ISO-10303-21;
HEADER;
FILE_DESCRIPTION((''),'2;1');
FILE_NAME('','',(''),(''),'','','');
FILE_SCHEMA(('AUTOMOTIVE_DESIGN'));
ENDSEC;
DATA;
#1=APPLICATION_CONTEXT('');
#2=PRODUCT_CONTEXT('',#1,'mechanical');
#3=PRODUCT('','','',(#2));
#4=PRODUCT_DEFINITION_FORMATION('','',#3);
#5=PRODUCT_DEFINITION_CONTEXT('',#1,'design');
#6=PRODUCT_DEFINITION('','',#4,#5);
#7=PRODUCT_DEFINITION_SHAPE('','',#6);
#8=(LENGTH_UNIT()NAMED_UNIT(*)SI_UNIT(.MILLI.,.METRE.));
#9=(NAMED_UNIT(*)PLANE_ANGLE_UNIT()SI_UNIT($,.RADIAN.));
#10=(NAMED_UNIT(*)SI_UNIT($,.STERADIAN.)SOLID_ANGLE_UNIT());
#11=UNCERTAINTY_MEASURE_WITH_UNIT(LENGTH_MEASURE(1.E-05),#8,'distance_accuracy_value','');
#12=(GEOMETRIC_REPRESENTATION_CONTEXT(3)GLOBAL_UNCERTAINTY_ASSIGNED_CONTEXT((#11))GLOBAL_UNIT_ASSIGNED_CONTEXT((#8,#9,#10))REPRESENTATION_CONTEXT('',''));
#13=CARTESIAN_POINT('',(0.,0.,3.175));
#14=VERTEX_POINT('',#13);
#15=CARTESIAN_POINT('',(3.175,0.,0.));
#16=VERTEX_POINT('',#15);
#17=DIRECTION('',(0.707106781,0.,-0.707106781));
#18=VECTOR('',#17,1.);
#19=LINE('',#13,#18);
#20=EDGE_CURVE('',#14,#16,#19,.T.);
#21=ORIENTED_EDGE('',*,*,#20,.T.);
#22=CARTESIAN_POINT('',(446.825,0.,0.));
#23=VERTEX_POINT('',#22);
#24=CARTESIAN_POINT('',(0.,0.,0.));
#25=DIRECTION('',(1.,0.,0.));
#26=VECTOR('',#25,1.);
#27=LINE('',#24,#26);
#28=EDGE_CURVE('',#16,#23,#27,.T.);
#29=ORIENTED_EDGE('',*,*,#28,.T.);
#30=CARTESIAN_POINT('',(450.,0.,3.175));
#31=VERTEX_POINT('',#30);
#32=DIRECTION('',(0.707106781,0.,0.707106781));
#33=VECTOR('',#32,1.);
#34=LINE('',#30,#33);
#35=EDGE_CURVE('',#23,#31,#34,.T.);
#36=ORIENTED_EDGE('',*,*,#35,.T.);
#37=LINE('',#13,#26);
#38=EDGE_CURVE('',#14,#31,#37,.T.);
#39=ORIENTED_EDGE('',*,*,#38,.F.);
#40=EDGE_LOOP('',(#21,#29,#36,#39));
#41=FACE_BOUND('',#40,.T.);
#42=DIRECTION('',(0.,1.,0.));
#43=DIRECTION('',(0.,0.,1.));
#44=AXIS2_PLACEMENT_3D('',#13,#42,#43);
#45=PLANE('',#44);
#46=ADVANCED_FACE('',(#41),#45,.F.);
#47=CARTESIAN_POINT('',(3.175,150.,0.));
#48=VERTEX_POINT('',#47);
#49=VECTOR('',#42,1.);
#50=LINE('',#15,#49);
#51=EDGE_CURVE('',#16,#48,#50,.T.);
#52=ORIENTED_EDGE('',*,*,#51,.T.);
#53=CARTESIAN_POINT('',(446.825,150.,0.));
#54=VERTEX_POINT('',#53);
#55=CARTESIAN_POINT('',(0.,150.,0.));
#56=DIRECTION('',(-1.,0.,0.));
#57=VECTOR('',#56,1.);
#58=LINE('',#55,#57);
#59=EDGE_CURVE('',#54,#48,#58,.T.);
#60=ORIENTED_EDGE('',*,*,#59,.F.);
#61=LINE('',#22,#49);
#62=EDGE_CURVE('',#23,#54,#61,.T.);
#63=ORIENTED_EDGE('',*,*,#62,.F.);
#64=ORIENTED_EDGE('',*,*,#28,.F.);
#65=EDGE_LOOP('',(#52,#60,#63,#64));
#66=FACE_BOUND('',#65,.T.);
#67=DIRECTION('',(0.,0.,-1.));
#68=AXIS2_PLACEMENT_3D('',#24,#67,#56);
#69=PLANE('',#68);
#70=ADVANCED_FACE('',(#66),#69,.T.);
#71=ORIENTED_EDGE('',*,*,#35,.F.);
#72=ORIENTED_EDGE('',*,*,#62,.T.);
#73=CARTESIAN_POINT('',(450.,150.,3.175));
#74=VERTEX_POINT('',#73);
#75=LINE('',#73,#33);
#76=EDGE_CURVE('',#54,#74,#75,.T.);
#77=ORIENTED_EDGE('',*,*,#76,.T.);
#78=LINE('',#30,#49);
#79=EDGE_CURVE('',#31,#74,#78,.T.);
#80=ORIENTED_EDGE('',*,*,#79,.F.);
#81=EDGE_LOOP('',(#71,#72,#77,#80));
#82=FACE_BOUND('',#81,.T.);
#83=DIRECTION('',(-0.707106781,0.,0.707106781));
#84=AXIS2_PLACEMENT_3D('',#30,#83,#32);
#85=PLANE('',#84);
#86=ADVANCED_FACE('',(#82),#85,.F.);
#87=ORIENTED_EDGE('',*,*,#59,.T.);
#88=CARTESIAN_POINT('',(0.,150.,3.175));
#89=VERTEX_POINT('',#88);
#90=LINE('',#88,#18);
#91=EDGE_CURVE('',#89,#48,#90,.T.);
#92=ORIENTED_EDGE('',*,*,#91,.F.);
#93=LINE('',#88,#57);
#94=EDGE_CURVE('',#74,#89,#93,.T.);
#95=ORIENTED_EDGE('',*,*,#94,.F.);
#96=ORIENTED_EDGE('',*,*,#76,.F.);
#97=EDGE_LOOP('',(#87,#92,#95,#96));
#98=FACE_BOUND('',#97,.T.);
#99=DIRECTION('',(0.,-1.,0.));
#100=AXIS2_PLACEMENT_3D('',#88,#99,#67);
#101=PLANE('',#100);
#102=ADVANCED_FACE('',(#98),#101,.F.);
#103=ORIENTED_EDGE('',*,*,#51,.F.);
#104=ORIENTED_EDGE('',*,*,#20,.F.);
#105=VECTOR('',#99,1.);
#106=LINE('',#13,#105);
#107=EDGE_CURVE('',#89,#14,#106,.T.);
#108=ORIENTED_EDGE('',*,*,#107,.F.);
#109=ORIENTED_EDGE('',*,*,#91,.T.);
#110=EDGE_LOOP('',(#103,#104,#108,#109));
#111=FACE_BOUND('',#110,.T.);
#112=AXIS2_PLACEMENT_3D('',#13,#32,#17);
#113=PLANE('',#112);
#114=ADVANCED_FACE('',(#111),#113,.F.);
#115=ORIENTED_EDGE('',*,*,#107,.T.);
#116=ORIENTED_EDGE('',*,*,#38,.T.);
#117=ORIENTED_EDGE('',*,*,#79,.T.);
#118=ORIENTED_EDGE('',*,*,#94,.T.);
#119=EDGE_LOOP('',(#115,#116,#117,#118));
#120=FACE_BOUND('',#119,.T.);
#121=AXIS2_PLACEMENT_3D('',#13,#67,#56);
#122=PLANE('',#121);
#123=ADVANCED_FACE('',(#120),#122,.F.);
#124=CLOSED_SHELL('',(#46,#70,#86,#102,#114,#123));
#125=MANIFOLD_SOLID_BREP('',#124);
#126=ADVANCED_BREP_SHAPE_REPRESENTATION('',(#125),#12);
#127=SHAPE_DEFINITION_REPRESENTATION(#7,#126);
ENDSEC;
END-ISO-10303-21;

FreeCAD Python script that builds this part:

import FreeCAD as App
import Part
import Sketcher

V = App.Vector
Q = App.Units.Quantity

doc = App.newDocument("Part")
body = doc.addObject("PartDesign::Body", "Body")

# Sketch on XY plane
sketch1 = doc.addObject("Sketcher::SketchObject", "Sketch")
body.addObject(sketch1)
sketch1.AttachmentSupport = (doc.XY_Plane, [""])
sketch1.MapMode = "FlatFace"
sketch1.addGeometry([
    Part.LineSegment(V(0, 150, 0), V(0, 0, 0)),
    Part.LineSegment(V(0, 0, 0), V(450, 0, 0)),
    Part.LineSegment(V(450, 0, 0), V(450, 150, 0)),
    Part.LineSegment(V(450, 150, 0), V(0, 150, 0)),
], False)
sketch1.addConstraint([
    Sketcher.Constraint("Coincident", 0, 2, 1, 1),
    Sketcher.Constraint("Coincident", 1, 2, 2, 1),
    Sketcher.Constraint("Coincident", 2, 2, 3, 1),
    Sketcher.Constraint("Coincident", 3, 2, 0, 1),
    Sketcher.Constraint("Vertical", 0),
    Sketcher.Constraint("Horizontal", 1),
    Sketcher.Constraint("Vertical", 2),
    Sketcher.Constraint("Horizontal", 3),
    Sketcher.Constraint("Coincident", 0, 2, -1, 1),
    Sketcher.Constraint("DistanceX", 1, 1, 1, 2, Q("450 mm")),
    Sketcher.Constraint("DistanceY", 0, 2, 0, 1, Q("150 mm")),
])
pad1 = doc.addObject("PartDesign::Pad", "Pad")
body.addObject(pad1)
pad1.Profile = sketch1
pad1.Length = 3.175

# Sketch on XZ plane
sketch2 = doc.addObject("Sketcher::SketchObject", "Sketch001")
body.addObject(sketch2)
sketch2.AttachmentSupport = (doc.XZ_Plane, [""])
sketch2.MapMode = "FlatFace"
sketch2.AttachmentOffset = App.Placement(V(0, 0, -150), App.Rotation())
sketch2.addGeometry([
    Part.LineSegment(V(0, 3.2, 0), V(3.2, 0, 0)),  # 0
    Part.LineSegment(V(3.2, 0, 0), V(0, 0, 0)),  # 1
    Part.LineSegment(V(0, 0, 0), V(0, 3.2, 0)),  # 2
    Part.LineSegment(V(446.8, 0, 0), V(450, 3.2, 0)),  # 3
    Part.LineSegment(V(450, 3.2, 0), V(450, 0, 0)),  # 4
    Part.LineSegment(V(450, 0, 0), V(446.8, 0, 0)),  # 5
], False)
sketch2.addConstraint([
    Sketcher.Constraint("Coincident", 0, 2, 1, 1),
    Sketcher.Constraint("Coincident", 1, 2, 2, 1),
    Sketcher.Constraint("Coincident", 2, 2, 0, 1),
    Sketcher.Constraint("Coincident", 3, 2, 4, 1),
    Sketcher.Constraint("Coincident", 4, 2, 5, 1),
    Sketcher.Constraint("Coincident", 5, 2, 3, 1),
    Sketcher.Constraint("Horizontal", 1),
    Sketcher.Constraint("Vertical", 2),
    Sketcher.Constraint("Vertical", 4),
    Sketcher.Constraint("Horizontal", 5),
    Sketcher.Constraint("Coincident", 1, 2, -1, 1),
    Sketcher.Constraint("PointOnObject", 4, 2, -1),
    Sketcher.Constraint("Perpendicular", 0, 3),
    Sketcher.Constraint("Horizontal", 2, 2, 3, 2),
    Sketcher.Constraint("Equal", 1, 5),
    Sketcher.Constraint("DistanceX", -1, 1, 3, 2, Q("450 mm")),
    Sketcher.Constraint("DistanceX", 1, 2, 1, 1, Q("3.175 mm")),
])
pocket1 = doc.addObject("PartDesign::Pocket", "Pocket")
body.addObject(pocket1)
pocket1.Profile = sketch2
pocket1.Type = "ThroughAll"
pocket1.Reversed = True

doc.recompute()
